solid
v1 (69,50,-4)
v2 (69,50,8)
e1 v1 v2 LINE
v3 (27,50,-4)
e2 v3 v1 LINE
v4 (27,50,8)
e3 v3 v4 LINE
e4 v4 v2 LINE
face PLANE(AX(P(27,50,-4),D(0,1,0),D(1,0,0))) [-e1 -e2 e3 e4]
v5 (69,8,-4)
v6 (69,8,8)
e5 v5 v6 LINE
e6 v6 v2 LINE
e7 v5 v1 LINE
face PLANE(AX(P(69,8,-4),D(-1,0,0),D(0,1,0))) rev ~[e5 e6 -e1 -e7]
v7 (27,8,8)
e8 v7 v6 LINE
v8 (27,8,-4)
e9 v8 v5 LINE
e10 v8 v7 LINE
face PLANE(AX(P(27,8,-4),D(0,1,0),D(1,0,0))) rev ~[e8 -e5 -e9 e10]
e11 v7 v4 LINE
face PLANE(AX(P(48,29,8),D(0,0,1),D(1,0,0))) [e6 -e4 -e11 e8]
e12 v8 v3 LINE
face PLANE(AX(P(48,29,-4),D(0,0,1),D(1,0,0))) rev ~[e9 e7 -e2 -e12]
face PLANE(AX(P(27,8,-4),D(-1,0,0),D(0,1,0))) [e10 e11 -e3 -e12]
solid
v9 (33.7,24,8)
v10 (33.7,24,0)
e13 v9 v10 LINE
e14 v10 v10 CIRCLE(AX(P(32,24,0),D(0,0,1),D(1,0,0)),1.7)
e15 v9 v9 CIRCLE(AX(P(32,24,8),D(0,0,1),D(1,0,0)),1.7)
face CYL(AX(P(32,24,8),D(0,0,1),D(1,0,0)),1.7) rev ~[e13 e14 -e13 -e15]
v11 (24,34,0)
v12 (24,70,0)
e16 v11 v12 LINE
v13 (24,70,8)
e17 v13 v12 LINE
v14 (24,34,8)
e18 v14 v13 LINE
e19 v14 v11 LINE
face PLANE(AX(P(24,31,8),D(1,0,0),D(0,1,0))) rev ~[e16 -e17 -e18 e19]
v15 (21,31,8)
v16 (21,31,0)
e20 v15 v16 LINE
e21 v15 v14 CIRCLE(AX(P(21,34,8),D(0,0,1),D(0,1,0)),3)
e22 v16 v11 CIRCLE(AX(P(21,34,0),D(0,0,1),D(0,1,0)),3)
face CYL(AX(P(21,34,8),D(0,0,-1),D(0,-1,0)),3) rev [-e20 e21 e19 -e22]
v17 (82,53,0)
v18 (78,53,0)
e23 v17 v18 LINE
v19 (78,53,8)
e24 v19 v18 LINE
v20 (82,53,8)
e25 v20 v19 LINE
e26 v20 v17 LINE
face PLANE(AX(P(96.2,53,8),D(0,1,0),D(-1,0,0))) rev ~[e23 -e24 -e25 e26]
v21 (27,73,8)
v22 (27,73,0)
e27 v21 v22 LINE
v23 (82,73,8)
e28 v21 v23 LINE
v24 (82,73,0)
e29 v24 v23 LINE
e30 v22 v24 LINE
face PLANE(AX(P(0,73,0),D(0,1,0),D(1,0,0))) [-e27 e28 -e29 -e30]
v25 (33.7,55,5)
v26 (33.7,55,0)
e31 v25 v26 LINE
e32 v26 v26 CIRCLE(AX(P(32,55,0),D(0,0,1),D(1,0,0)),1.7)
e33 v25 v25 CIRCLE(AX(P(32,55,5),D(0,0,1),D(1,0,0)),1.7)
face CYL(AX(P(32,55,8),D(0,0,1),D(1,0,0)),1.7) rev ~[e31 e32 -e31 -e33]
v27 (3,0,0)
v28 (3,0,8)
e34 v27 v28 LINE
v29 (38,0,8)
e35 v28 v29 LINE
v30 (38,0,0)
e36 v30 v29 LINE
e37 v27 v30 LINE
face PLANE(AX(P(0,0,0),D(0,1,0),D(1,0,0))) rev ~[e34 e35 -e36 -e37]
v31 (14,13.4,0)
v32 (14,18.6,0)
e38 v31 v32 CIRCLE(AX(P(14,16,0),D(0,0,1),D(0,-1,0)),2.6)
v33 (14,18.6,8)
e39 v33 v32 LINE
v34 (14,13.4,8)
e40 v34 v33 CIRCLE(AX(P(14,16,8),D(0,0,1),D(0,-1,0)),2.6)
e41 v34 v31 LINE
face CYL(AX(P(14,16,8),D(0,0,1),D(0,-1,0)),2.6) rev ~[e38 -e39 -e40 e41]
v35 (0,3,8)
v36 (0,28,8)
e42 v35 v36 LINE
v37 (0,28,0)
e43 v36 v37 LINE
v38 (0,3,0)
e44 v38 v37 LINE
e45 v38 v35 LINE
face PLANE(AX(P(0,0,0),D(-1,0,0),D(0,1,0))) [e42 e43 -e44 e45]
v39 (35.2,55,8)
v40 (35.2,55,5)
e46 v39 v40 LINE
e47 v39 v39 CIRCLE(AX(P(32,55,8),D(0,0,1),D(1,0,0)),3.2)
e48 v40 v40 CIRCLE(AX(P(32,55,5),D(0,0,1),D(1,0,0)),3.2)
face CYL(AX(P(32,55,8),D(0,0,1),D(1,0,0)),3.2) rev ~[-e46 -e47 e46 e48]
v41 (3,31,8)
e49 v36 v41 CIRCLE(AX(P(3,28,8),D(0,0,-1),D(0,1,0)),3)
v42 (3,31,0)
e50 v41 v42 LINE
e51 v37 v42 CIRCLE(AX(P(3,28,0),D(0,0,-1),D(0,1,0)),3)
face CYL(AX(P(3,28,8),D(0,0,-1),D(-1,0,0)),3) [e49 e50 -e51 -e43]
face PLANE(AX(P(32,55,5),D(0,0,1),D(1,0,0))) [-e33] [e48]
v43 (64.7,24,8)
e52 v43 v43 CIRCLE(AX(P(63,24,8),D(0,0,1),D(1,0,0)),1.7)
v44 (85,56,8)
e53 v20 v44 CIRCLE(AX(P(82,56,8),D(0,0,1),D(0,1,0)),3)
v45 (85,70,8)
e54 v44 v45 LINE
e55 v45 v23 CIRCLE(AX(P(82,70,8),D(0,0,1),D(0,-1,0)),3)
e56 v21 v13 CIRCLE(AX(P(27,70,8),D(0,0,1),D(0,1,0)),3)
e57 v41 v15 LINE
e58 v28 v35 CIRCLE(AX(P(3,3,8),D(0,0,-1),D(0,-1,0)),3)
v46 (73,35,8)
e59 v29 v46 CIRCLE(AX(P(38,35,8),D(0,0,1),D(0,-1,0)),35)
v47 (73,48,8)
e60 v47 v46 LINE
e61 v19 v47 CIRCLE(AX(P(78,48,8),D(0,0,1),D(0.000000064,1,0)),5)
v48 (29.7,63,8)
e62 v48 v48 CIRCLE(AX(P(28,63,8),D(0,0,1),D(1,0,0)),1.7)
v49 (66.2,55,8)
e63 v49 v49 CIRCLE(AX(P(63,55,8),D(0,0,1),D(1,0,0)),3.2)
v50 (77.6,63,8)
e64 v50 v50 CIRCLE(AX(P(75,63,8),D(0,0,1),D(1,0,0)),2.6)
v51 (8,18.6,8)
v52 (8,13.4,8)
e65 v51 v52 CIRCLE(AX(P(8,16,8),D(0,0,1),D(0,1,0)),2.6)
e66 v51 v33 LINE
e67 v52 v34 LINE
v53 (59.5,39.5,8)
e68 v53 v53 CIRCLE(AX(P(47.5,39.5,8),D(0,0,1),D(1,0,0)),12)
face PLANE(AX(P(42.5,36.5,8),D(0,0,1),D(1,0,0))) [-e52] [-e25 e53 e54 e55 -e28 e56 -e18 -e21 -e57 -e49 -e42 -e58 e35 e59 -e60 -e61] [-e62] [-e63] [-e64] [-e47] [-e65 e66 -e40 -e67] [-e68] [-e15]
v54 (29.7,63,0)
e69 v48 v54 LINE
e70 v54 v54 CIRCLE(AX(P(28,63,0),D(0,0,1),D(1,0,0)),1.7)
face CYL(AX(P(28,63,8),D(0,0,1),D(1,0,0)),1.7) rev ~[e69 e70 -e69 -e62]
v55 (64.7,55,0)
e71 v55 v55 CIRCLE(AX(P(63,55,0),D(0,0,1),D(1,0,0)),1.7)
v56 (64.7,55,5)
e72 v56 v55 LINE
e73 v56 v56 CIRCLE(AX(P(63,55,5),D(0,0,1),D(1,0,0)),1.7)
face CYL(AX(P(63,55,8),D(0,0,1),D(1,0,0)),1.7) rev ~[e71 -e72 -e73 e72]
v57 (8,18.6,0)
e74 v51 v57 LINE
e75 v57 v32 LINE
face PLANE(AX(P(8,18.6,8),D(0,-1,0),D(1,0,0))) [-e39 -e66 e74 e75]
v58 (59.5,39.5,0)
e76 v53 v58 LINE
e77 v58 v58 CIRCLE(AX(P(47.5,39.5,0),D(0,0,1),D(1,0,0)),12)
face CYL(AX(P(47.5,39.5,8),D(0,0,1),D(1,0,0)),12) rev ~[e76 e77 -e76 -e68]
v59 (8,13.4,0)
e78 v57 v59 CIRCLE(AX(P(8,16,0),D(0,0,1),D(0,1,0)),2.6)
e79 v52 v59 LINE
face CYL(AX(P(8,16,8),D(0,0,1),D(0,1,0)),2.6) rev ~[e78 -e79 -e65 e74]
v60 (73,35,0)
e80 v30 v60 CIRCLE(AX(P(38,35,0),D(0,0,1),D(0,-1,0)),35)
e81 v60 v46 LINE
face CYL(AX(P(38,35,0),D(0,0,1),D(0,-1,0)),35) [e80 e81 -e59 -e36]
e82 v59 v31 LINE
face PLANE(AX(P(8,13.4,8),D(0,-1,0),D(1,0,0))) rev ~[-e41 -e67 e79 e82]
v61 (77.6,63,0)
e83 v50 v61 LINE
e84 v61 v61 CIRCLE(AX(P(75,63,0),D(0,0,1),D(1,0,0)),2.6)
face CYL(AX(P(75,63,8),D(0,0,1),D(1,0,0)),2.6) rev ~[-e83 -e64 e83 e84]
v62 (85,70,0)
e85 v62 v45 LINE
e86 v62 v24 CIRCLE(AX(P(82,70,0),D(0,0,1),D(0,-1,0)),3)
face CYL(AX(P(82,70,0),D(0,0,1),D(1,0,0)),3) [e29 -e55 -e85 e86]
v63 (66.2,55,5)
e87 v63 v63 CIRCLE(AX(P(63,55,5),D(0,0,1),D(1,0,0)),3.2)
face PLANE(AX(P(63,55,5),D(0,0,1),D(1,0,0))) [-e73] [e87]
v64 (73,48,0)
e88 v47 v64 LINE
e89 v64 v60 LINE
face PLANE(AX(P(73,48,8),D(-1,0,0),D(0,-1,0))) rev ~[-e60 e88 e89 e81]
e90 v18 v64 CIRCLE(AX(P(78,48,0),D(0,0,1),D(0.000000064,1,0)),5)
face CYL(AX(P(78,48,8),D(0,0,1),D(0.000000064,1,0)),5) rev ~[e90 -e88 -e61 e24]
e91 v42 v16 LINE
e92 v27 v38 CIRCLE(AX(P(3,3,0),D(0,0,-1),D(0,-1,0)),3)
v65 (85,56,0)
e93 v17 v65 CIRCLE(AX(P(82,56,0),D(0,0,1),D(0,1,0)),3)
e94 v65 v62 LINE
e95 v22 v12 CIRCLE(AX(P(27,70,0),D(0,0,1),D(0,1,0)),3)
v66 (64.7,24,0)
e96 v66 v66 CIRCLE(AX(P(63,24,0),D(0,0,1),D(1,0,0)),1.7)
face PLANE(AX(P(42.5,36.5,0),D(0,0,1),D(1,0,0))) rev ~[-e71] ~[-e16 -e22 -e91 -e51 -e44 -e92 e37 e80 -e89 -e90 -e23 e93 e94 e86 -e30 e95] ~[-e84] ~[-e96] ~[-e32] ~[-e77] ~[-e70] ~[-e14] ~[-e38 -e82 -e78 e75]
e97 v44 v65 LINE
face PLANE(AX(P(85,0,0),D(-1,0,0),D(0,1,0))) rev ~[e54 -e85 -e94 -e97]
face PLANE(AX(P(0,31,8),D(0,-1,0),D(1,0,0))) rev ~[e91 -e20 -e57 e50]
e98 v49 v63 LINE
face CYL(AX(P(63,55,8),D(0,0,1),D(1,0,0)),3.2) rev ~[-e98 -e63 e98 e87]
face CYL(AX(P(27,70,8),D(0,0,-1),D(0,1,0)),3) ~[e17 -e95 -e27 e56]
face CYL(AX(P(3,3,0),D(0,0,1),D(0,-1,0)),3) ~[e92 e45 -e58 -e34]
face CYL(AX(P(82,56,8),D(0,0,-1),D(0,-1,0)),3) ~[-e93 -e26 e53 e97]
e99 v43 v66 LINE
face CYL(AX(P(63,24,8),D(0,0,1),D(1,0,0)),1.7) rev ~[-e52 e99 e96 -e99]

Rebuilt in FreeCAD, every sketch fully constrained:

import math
import FreeCAD as App
import Part
import Sketcher
from FreeCAD import Vector


def edges_at(feature, points):
    """Names of the edges that pass closest to the given points."""
    edges = feature.Shape.Edges
    near = lambda p: min(range(len(edges)), key=lambda i: edges[i].distToShape(Part.Vertex(*p))[0])
    return sorted({f"Edge{near(p) + 1}" for p in points})


def add_polygon(sketch, points):
    """Adds a closed chain of lines whose ends are joined by coincident constraints."""
    first, n = sketch.GeometryCount, len(points)
    for a, b in zip(points, points[1:] + points[:1]):
        sketch.addGeometry(Part.LineSegment(App.Vector(*a, 0), App.Vector(*b, 0)), False)
    for i in range(n):
        sketch.addConstraint(Sketcher.Constraint("Coincident", first + i, 2, first + (i + 1) % n, 1))

doc = App.newDocument("Part")
params = doc.addObject("Spreadsheet::Sheet", "Params")
for row, (alias, value) in enumerate([
    ("sketch1_width", "42 mm"),
    ("pad1_length", "12 mm"),
    ("sketch2_width", "85 mm"),
    ("sketch2_height", "73 mm"),
    ("pad2_length", "8 mm"),
    ("sketch3_diameter", "24 mm"),
    ("sketch3_radius", "5 mm"),
    ("sketch3_diameter2", "3.4 mm"),
    ("sketch3_diameter3", "5.2 mm"),
    ("sketch3_width", "24 mm"),
    ("pocket1_length", "8 mm"),
    ("sketch4_diameter", "6.4 mm"),
    ("pocket2_length", "3 mm"),
    ("fillet_radius", "35 mm"),
    ("fillet2_radius", "3 mm"),
], start=1):
    params.set(f"A{row}", alias)
    params.set(f"B{row}", "=" + value)
    params.setAlias(f"B{row}", alias)

body = doc.addObject("PartDesign::Body", "Body")

sketch1 = body.newObject("Sketcher::SketchObject", "Sketch")
sketch1.AttachmentSupport = (doc.getObject("XY_Plane"), [""])
sketch1.MapMode = "FlatFace"
sketch1.AttachmentOffset = App.Placement(Vector(0, 0, -4), App.Rotation())
add_polygon(sketch1, [(27, 50), (27, 8), (69, 8), (69, 50)])
sketch1.addConstraint([
    Sketcher.Constraint("Vertical", 0),
    Sketcher.Constraint("Horizontal", 1),
    Sketcher.Constraint("Vertical", 2),
    Sketcher.Constraint("Horizontal", 3),
    Sketcher.Constraint("Equal", 3, 0),
    Sketcher.Constraint("DistanceX", 1, 1, 1, 2, 42.0),
    Sketcher.Constraint("DistanceX", -1, 1, 0, 2, 27.0),
    Sketcher.Constraint("DistanceY", -1, 1, 0, 2, 8.0),
])
sketch1.setExpression("Constraints[9]", "Params.sketch1_width")
pad1 = body.newObject("PartDesign::Pad", "Pad")
pad1.Profile = sketch1
pad1.setExpression("Length", "Params.pad1_length")
body2 = doc.addObject("PartDesign::Body", "Body001")

sketch2 = body2.newObject("Sketcher::SketchObject", "Sketch001")
sketch2.AttachmentSupport = (doc.getObject("XY_Plane001"), [""])
sketch2.MapMode = "FlatFace"
add_polygon(sketch2, [(0, 73), (0, 0), (85, 0), (85, 73)])
sketch2.addConstraint([
    Sketcher.Constraint("Vertical", 0),
    Sketcher.Constraint("Horizontal", 1),
    Sketcher.Constraint("Vertical", 2),
    Sketcher.Constraint("Horizontal", 3),
    Sketcher.Constraint("Coincident", 0, 2, -1, 1),
    Sketcher.Constraint("DistanceX", 1, 1, 1, 2, 85.0),
    Sketcher.Constraint("DistanceY", 0, 2, 0, 1, 73.0),
])
sketch2.setExpression("Constraints[9]", "Params.sketch2_width")
sketch2.setExpression("Constraints[10]", "Params.sketch2_height")
pad2 = body2.newObject("PartDesign::Pad", "Pad001")
pad2.Profile = sketch2
pad2.setExpression("Length", "Params.pad2_length")

sketch3 = body2.newObject("Sketcher::SketchObject", "Sketch002")
sketch3.AttachmentSupport = (doc.getObject("XY_Plane001"), [""])
sketch3.MapMode = "FlatFace"
sketch3.AttachmentOffset = App.Placement(Vector(0, 0, 8), App.Rotation())
sketch3.addGeometry(Part.Circle(Vector(32, 55, 0), Vector(0, 0, 1), 1.7), False)
sketch3.addGeometry(Part.Circle(Vector(63, 55, 0), Vector(0, 0, 1), 1.7), False)
sketch3.addGeometry(Part.Circle(Vector(63, 24, 0), Vector(0, 0, 1), 1.7), False)
sketch3.addGeometry(Part.Circle(Vector(32, 24, 0), Vector(0, 0, 1), 1.7), False)
sketch3.addGeometry(Part.Circle(Vector(47.5, 39.5, 0), Vector(0, 0, 1), 12), False)
sketch3.addGeometry(Part.Circle(Vector(28, 63, 0), Vector(0, 0, 1), 1.7), False)
sketch3.addGeometry(Part.Circle(Vector(75, 63, 0), Vector(0, 0, 1), 2.6), False)
add_polygon(sketch3, [(0, 73), (0, 31), (24, 31), (24, 73)])
sketch3.addGeometry(Part.ArcOfCircle(Part.Circle(Vector(8, 16, 0), Vector(0, 0, 1), 2.6), math.radians(90), math.radians(270)), False)
sketch3.addGeometry(Part.LineSegment(Vector(8, 13.4, 0), Vector(14, 13.4, 0)), False)
sketch3.addGeometry(Part.ArcOfCircle(Part.Circle(Vector(14, 16, 0), Vector(0, 0, 1), 2.6), math.radians(-90), math.radians(90)), False)
sketch3.addGeometry(Part.LineSegment(Vector(14, 18.6, 0), Vector(8, 18.6, 0)), False)
sketch3.addGeometry(Part.LineSegment(Vector(96.2, 53, 0), Vector(78, 53, 0)), False)
sketch3.addGeometry(Part.ArcOfCircle(Part.Circle(Vector(78, 48, 0), Vector(0, 0, 1), 5), math.radians(90), math.radians(180)), False)
sketch3.addGeometry(Part.LineSegment(Vector(73, 48, 0), Vector(73, -12.2, 0)), False)
sketch3.addGeometry(Part.LineSegment(Vector(73, -12.2, 0), Vector(96.2, -12.2, 0)), False)
sketch3.addGeometry(Part.LineSegment(Vector(96.2, -12.2, 0), Vector(96.2, 53, 0)), False)
sketch3.addConstraint([
    Sketcher.Constraint("Tangent", 11, 2, 12, 1),
    Sketcher.Constraint("Tangent", 12, 2, 13, 1),
    Sketcher.Constraint("Tangent", 13, 2, 14, 1),
    Sketcher.Constraint("Tangent", 14, 2, 11, 1),
    Sketcher.Constraint("Tangent", 15, 2, 16, 1),
    Sketcher.Constraint("Tangent", 16, 2, 17, 1),
    Sketcher.Constraint("Coincident", 17, 2, 18, 1),
    Sketcher.Constraint("Coincident", 18, 2, 19, 1),
    Sketcher.Constraint("Coincident", 19, 2, 15, 1),
    Sketcher.Constraint("Vertical", 7),
    Sketcher.Constraint("Horizontal", 8),
    Sketcher.Constraint("Vertical", 9),
    Sketcher.Constraint("Horizontal", 10),
    Sketcher.Constraint("Horizontal", 12),
    Sketcher.Constraint("Horizontal", 14),
    Sketcher.Constraint("Horizontal", 15),
    Sketcher.Constraint("Vertical", 17),
    Sketcher.Constraint("Horizontal", 18),
    Sketcher.Constraint("Vertical", 19),
    Sketcher.Constraint("Equal", 0, 1),
    Sketcher.Constraint("Equal", 1, 2),
    Sketcher.Constraint("Equal", 2, 3),
    Sketcher.Constraint("Equal", 3, 5),
    Sketcher.Constraint("Equal", 6, 11),
    Sketcher.Constraint("PointOnObject", 7, 2, -2),
    Sketcher.Constraint("Horizontal", 0, 3, 1, 3),
    Sketcher.Constraint("Horizontal", 2, 3, 3, 3),
    Sketcher.Constraint("Horizontal", 5, 3, 6, 3),
    Sketcher.Constraint("Vertical", 1, 3, 2, 3),
    Sketcher.Constraint("Vertical", 0, 3, 3, 3),
    Sketcher.Constraint("Diameter", 4, 24.0),
    Sketcher.Constraint("Radius", 16, 5.0),
    Sketcher.Constraint("Diameter", 0, 3.4),
    Sketcher.Constraint("Diameter", 6, 5.2),
    Sketcher.Constraint("DistanceX", 8, 1, 8, 2, 24.0),
    Sketcher.Constraint("DistanceX", 12, 1, 12, 2, 6.0),
    Sketcher.Constraint("DistanceY", 7, 2, 7, 1, 42.0),
    Sketcher.Constraint("DistanceX", 15, 2, 15, 1, 18.2),
    Sketcher.Constraint("DistanceY", 17, 2, 17, 1, 60.2),
    Sketcher.Constraint("DistanceX", -1, 1, 0, 3, 32.0),
    Sketcher.Constraint("DistanceY", -1, 1, 0, 3, 55.0),
    Sketcher.Constraint("DistanceX", -1, 1, 1, 3, 63.0),
    Sketcher.Constraint("DistanceY", -1, 1, 2, 3, 24.0),
    Sketcher.Constraint("DistanceX", -1, 1, 5, 3, 28.0),
    Sketcher.Constraint("DistanceY", -1, 1, 5, 3, 63.0),
    Sketcher.Constraint("DistanceX", -1, 1, 6, 3, 75.0),
    Sketcher.Constraint("DistanceX", -1, 1, 11, 3, 8.0),
    Sketcher.Constraint("DistanceY", -1, 1, 11, 3, 16.0),
    Sketcher.Constraint("DistanceX", -1, 1, 16, 3, 78.0),
    Sketcher.Constraint("DistanceY", -1, 1, 16, 3, 48.0),
    Sketcher.Constraint("DistanceY", -1, 1, 7, 2, 31.0),
    Sketcher.Constraint("DistanceX", -1, 1, 4, 3, 47.5),
    Sketcher.Constraint("DistanceY", -1, 1, 4, 3, 39.5),
])
sketch3.setExpression("Constraints[34]", "Params.sketch3_diameter")
sketch3.setExpression("Constraints[35]", "Params.sketch3_radius")
sketch3.setExpression("Constraints[36]", "Params.sketch3_diameter2")
sketch3.setExpression("Constraints[37]", "Params.sketch3_diameter3")
sketch3.setExpression("Constraints[38]", "Params.sketch3_width")
pocket1 = body2.newObject("PartDesign::Pocket", "Pocket")
pocket1.Profile = sketch3
pocket1.setExpression("Length", "Params.pocket1_length")

sketch4 = body2.newObject("Sketcher::SketchObject", "Sketch003")
sketch4.AttachmentSupport = (doc.getObject("XY_Plane001"), [""])
sketch4.MapMode = "FlatFace"
sketch4.AttachmentOffset = App.Placement(Vector(0, 0, 8), App.Rotation())
sketch4.addGeometry([
    Part.Circle(Vector(32, 55, 0), Vector(0, 0, 1), 3.2),
    Part.Circle(Vector(63, 55, 0), Vector(0, 0, 1), 3.2),
], False)
sketch4.addConstraint([
    Sketcher.Constraint("Equal", 0, 1),
    Sketcher.Constraint("Horizontal", 0, 3, 1, 3),
    Sketcher.Constraint("Diameter", 0, 6.4),
    Sketcher.Constraint("DistanceX", -1, 1, 0, 3, 32.0),
    Sketcher.Constraint("DistanceY", -1, 1, 0, 3, 55.0),
    Sketcher.Constraint("DistanceX", -1, 1, 1, 3, 63.0),
])
sketch4.setExpression("Constraints[2]", "Params.sketch4_diameter")
pocket2 = body2.newObject("PartDesign::Pocket", "Pocket001")
pocket2.Profile = sketch4
pocket2.setExpression("Length", "Params.pocket2_length")
doc.recompute()

fillet = body2.newObject("PartDesign::Fillet", "Fillet")
fillet.Base = (pocket2, edges_at(pocket2, [(73, 0, 4)]))
fillet.setExpression("Radius", "Params.fillet_radius")
doc.recompute()

fillet2 = body2.newObject("PartDesign::Fillet", "Fillet001")
fillet2.Base = (fillet, edges_at(fillet, [
    (24, 31, 4),
    (0, 31, 4),
    (0, 0, 4),
    (24, 73, 4),
    (85, 73, 4),
    (85, 53, 4),
]))
fillet2.setExpression("Radius", "Params.fillet2_radius")

doc.recompute()
